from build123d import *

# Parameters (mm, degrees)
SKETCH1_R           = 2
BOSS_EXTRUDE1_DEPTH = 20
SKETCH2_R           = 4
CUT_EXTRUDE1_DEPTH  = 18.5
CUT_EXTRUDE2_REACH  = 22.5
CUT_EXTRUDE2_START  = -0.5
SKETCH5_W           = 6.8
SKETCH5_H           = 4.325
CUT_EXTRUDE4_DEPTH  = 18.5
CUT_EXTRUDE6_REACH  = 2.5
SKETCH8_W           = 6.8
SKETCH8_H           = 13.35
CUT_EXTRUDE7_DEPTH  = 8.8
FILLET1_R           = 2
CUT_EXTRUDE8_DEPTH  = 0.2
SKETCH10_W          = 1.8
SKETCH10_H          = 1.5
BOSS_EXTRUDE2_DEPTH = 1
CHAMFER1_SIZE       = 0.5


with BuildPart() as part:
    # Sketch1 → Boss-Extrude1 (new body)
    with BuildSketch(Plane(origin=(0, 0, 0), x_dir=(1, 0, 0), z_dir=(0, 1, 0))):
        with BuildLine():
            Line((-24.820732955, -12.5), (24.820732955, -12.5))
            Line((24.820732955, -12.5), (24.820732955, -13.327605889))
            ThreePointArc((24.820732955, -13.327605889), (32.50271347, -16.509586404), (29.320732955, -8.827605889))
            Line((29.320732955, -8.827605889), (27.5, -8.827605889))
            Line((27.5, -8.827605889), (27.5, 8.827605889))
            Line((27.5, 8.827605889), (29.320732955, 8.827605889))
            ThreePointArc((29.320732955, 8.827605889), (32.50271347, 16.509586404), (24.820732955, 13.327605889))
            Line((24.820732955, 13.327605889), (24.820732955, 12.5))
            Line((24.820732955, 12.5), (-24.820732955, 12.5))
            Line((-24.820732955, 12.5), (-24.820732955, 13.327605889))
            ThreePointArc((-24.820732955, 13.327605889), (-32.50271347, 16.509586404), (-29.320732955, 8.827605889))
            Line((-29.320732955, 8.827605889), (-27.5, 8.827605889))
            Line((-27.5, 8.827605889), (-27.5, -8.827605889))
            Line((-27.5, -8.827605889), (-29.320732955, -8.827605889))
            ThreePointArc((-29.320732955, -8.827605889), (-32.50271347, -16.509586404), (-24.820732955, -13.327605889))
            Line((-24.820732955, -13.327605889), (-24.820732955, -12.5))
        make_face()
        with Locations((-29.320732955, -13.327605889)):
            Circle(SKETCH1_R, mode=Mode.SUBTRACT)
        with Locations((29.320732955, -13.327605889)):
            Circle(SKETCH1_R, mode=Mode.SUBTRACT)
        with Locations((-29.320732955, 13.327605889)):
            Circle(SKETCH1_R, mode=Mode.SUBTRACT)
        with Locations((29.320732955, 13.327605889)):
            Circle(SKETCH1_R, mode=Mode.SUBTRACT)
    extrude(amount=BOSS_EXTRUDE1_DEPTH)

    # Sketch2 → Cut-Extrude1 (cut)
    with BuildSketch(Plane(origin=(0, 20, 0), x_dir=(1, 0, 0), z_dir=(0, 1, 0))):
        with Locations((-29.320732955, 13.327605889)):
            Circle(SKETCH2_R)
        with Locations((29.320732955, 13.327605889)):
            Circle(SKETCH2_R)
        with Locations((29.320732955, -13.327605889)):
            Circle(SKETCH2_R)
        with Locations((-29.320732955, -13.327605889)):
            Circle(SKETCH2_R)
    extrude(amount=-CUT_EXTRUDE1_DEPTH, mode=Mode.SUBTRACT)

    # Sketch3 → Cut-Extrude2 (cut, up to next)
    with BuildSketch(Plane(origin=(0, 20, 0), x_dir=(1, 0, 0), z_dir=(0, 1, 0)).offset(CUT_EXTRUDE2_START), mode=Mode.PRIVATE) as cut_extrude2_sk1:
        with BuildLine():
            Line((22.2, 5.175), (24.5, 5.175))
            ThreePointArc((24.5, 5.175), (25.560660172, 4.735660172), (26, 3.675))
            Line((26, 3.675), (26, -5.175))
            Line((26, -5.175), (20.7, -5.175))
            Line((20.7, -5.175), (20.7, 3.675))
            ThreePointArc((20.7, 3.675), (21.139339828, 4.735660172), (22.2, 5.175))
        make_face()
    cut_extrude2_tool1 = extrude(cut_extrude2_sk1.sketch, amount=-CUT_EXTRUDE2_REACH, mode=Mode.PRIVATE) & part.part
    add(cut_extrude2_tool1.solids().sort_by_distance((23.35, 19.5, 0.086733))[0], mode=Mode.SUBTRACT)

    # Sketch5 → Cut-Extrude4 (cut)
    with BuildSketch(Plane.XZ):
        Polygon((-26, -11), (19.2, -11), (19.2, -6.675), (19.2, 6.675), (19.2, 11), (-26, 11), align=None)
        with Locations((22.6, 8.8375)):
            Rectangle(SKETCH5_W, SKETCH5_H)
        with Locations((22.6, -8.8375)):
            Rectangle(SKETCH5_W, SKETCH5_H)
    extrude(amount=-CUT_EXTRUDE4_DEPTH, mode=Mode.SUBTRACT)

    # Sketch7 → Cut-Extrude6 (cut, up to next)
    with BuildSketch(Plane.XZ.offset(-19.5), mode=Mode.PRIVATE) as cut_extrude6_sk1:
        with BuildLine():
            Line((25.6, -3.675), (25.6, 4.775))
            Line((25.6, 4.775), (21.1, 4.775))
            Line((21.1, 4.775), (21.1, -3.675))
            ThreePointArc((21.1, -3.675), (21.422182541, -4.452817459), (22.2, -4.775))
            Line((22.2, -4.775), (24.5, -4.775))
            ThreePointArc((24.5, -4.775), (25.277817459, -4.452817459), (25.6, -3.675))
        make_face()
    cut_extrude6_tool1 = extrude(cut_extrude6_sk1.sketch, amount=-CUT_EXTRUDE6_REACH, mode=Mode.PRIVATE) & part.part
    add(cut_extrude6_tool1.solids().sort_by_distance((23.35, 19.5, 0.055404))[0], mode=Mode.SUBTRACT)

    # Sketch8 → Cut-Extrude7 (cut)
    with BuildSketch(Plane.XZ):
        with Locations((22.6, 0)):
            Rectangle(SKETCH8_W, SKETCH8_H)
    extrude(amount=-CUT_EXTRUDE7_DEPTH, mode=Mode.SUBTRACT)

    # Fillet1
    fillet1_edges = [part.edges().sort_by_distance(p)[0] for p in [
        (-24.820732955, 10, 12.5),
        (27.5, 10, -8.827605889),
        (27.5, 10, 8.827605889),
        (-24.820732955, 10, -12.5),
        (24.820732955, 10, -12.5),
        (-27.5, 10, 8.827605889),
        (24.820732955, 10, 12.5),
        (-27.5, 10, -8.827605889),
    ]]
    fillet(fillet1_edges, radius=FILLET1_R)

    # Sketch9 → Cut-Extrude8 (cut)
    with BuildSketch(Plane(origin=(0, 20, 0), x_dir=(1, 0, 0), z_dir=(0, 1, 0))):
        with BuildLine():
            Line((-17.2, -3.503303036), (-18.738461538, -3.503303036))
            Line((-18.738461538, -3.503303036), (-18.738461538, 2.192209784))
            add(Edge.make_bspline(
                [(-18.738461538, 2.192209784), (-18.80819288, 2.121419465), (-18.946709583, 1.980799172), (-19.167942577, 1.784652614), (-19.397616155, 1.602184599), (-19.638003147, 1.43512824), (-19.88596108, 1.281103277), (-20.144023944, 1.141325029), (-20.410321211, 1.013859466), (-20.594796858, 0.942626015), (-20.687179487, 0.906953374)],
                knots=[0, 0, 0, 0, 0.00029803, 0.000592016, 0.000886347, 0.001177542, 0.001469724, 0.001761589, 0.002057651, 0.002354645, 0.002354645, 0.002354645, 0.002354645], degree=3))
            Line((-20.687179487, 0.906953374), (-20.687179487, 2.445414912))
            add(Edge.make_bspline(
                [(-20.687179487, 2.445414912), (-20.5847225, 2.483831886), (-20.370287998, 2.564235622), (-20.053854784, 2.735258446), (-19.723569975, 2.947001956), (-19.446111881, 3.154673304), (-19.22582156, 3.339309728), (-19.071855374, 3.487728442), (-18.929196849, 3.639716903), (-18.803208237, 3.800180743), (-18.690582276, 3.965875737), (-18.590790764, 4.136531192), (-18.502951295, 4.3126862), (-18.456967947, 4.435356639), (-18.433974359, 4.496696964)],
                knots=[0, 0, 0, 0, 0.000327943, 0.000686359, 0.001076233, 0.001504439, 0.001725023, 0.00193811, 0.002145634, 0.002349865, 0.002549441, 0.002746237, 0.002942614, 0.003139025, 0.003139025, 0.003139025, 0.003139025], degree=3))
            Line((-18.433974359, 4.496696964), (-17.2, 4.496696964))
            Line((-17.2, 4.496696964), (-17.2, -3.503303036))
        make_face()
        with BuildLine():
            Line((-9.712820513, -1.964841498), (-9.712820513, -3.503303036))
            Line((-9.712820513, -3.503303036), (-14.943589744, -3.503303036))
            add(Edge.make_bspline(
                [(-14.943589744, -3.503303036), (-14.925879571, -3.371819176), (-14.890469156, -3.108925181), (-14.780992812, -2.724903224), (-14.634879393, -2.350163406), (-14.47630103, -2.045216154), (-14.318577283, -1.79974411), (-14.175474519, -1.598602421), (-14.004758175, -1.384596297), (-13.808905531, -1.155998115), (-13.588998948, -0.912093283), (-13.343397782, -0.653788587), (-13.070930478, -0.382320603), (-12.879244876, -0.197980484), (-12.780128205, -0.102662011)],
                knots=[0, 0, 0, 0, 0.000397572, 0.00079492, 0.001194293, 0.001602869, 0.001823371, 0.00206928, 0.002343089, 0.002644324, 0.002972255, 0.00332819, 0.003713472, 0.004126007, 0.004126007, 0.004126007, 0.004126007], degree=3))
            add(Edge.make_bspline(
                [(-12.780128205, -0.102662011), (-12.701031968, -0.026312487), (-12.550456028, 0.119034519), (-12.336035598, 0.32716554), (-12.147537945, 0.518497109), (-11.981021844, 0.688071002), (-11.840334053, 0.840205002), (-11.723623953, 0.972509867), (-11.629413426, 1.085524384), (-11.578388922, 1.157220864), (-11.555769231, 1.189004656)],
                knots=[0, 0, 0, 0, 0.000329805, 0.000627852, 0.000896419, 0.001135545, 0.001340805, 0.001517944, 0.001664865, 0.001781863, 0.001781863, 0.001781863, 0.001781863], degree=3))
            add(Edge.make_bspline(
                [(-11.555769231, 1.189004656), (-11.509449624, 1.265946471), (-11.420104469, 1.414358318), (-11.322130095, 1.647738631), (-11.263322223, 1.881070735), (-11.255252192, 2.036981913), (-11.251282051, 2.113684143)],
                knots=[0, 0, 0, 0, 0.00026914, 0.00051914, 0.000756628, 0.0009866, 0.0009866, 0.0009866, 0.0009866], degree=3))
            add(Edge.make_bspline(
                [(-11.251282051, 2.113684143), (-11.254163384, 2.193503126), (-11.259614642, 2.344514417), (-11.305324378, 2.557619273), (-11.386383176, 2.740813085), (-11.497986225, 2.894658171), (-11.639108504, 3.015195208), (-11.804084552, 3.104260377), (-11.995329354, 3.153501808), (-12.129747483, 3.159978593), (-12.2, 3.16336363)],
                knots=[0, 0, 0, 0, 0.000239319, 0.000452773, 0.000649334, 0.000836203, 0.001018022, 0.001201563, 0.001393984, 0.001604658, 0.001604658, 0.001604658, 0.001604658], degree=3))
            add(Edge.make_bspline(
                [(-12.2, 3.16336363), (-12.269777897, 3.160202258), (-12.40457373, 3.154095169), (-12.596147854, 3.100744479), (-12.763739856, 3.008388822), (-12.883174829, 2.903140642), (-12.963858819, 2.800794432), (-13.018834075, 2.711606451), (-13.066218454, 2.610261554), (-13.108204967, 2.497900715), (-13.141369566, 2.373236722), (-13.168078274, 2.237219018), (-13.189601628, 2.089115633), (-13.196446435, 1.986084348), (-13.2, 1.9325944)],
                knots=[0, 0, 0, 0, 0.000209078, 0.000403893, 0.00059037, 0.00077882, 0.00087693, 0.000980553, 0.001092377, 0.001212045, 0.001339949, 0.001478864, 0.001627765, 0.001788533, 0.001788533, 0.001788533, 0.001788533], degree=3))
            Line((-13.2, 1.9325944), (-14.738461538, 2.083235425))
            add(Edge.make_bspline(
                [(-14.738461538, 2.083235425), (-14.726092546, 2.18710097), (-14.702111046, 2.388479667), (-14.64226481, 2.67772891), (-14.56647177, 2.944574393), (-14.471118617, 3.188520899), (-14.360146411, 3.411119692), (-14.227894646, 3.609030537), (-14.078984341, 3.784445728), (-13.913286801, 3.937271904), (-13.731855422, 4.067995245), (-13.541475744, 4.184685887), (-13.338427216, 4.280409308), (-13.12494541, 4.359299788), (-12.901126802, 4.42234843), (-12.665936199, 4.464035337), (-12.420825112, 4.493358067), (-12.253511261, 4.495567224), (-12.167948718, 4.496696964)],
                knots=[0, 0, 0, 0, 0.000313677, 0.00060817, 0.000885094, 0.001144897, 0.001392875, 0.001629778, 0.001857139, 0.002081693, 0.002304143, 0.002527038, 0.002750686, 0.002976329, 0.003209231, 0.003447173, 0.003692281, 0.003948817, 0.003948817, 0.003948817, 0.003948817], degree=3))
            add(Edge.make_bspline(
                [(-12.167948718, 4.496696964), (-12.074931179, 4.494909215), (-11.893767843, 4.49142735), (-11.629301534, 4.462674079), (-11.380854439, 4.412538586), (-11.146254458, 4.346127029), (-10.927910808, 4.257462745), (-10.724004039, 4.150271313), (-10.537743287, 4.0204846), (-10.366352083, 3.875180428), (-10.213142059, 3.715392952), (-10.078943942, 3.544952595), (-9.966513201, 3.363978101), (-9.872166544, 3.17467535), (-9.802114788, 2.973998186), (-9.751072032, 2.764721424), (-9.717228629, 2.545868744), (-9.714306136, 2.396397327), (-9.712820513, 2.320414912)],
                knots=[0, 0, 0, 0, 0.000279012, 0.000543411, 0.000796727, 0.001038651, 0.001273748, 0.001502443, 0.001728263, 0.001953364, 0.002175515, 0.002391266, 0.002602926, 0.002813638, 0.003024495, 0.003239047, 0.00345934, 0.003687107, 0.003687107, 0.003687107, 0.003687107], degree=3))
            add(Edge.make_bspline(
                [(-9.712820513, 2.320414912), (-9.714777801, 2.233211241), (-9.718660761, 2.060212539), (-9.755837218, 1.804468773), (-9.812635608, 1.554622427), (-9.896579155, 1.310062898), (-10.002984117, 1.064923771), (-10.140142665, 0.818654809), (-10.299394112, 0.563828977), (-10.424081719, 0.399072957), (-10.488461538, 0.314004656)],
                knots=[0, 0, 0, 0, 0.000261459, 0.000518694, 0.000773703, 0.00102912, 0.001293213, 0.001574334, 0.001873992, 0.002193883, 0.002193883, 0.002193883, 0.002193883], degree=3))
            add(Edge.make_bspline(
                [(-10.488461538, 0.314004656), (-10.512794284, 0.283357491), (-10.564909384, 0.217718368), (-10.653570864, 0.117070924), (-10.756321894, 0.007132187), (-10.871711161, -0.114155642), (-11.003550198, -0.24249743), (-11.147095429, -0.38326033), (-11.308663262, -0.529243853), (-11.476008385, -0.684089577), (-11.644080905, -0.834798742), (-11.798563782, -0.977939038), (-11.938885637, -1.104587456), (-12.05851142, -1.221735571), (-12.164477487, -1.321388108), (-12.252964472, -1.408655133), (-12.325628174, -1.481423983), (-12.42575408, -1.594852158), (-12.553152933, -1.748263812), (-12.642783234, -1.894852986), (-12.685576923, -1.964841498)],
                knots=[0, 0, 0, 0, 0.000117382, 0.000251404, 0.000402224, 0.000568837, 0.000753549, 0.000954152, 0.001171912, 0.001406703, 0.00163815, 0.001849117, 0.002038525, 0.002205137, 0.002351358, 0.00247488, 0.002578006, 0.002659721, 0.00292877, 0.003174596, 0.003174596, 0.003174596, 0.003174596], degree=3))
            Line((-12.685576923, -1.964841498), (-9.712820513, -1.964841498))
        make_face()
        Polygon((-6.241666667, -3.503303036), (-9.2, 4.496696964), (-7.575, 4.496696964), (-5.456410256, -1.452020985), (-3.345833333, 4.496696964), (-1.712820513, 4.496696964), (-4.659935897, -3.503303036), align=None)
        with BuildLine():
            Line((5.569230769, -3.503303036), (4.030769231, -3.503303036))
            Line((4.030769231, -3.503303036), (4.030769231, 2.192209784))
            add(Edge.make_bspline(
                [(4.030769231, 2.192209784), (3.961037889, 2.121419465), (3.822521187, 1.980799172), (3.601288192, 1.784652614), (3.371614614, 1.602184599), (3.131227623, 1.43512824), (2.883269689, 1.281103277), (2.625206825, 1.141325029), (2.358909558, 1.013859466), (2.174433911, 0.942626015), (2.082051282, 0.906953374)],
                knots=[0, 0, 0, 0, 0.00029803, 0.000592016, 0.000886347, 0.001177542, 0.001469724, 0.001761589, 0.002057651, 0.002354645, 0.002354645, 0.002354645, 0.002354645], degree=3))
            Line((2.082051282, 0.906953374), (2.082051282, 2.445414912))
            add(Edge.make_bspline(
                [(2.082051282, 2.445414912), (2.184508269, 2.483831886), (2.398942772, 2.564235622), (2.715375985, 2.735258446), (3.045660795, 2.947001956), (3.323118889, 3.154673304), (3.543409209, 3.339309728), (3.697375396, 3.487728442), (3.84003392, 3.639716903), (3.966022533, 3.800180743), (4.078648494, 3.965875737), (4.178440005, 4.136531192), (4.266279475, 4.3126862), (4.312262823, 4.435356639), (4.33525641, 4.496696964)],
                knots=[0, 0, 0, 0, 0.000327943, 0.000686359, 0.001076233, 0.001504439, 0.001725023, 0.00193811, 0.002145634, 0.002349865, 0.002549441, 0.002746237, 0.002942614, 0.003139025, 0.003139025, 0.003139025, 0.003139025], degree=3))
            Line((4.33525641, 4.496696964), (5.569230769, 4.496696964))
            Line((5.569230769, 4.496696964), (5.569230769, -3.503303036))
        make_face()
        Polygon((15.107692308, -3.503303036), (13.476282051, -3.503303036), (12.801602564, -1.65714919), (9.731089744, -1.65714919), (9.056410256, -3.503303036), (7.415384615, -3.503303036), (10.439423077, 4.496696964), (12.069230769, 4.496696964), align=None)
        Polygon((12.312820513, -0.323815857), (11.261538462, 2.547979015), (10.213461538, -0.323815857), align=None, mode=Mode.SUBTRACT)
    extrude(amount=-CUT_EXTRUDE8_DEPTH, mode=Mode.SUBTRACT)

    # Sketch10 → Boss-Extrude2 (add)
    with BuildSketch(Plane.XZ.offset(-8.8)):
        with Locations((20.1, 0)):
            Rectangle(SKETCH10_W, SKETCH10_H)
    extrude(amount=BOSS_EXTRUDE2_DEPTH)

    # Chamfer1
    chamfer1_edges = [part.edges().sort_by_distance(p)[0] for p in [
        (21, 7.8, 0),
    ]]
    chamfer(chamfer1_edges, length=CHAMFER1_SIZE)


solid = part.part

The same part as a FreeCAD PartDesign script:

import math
import FreeCAD as App
import Part
import Sketcher

V = App.Vector


def edges_at(feature, points):
    """Names of the edges that pass closest to the given points."""
    edges = feature.Shape.Edges
    near = lambda p: min(range(len(edges)), key=lambda i: edges[i].distToShape(Part.Vertex(*p))[0])
    return sorted({f"Edge{near(p) + 1}" for p in points})

doc = App.newDocument("Part")
body = doc.addObject("PartDesign::Body", "Body")

sketch1 = body.newObject("Sketcher::SketchObject", "Sketch")
sketch1.AttachmentSupport = (doc.getObject("XZ_Plane"), [""])
sketch1.MapMode = "FlatFace"
sketch1.addGeometry(Part.LineSegment(V(-24.820733, 12.5, 0), V(24.820733, 12.5, 0)), False)
sketch1.addGeometry(Part.LineSegment(V(24.820733, 12.5, 0), V(24.820733, 13.327606, 0)), False)
sketch1.addGeometry(Part.ArcOfCircle(Part.Circle(V(29.320733, 13.327606, 0), V(0, 0, 1), 4.5), math.radians(-90), math.radians(180)), False)
sketch1.addGeometry(Part.LineSegment(V(29.320733, 8.827606, 0), V(27.5, 8.827606, 0)), False)
sketch1.addGeometry(Part.LineSegment(V(27.5, 8.827606, 0), V(27.5, -8.827606, 0)), False)
sketch1.addGeometry(Part.LineSegment(V(27.5, -8.827606, 0), V(29.320733, -8.827606, 0)), False)
sketch1.addGeometry(Part.ArcOfCircle(Part.Circle(V(29.320733, -13.327606, 0), V(0, 0, 1), 4.5), math.radians(180), math.radians(450)), False)
sketch1.addGeometry(Part.LineSegment(V(24.820733, -13.327606, 0), V(24.820733, -12.5, 0)), False)
sketch1.addGeometry(Part.LineSegment(V(24.820733, -12.5, 0), V(-24.820733, -12.5, 0)), False)
sketch1.addGeometry(Part.LineSegment(V(-24.820733, -12.5, 0), V(-24.820733, -13.327606, 0)), False)
sketch1.addGeometry(Part.ArcOfCircle(Part.Circle(V(-29.320733, -13.327606, 0), V(0, 0, 1), 4.5), math.radians(90), math.radians(360)), False)
sketch1.addGeometry(Part.LineSegment(V(-29.320733, -8.827606, 0), V(-27.5, -8.827606, 0)), False)
sketch1.addGeometry(Part.LineSegment(V(-27.5, -8.827606, 0), V(-27.5, 8.827606, 0)), False)
sketch1.addGeometry(Part.LineSegment(V(-27.5, 8.827606, 0), V(-29.320733, 8.827606, 0)), False)
sketch1.addGeometry(Part.ArcOfCircle(Part.Circle(V(-29.320733, 13.327606, 0), V(0, 0, 1), 4.5), math.radians(0), math.radians(270)), False)
sketch1.addGeometry(Part.LineSegment(V(-24.820733, 13.327606, 0), V(-24.820733, 12.5, 0)), False)
sketch1.addGeometry(Part.Circle(V(-29.320733, 13.327606, 0), V(0, 0, 1), 2), False)
sketch1.addGeometry(Part.Circle(V(29.320733, 13.327606, 0), V(0, 0, 1), 2), False)
sketch1.addGeometry(Part.Circle(V(-29.320733, -13.327606, 0), V(0, 0, 1), 2), False)
sketch1.addGeometry(Part.Circle(V(29.320733, -13.327606, 0), V(0, 0, 1), 2), False)
sketch1.addConstraint(Sketcher.Constraint("Coincident", 0, 2, 1, 1))
sketch1.addConstraint(Sketcher.Constraint("Tangent", 1, 2, 2, 2))
sketch1.addConstraint(Sketcher.Constraint("Tangent", 2, 1, 3, 1))
sketch1.addConstraint(Sketcher.Constraint("Coincident", 3, 2, 4, 1))
sketch1.addConstraint(Sketcher.Constraint("Coincident", 4, 2, 5, 1))
sketch1.addConstraint(Sketcher.Constraint("Tangent", 5, 2, 6, 2))
sketch1.addConstraint(Sketcher.Constraint("Tangent", 6, 1, 7, 1))
sketch1.addConstraint(Sketcher.Constraint("Coincident", 7, 2, 8, 1))
sketch1.addConstraint(Sketcher.Constraint("Coincident", 8, 2, 9, 1))
sketch1.addConstraint(Sketcher.Constraint("Tangent", 9, 2, 10, 2))
sketch1.addConstraint(Sketcher.Constraint("Tangent", 10, 1, 11, 1))
sketch1.addConstraint(Sketcher.Constraint("Coincident", 11, 2, 12, 1))
sketch1.addConstraint(Sketcher.Constraint("Coincident", 12, 2, 13, 1))
sketch1.addConstraint(Sketcher.Constraint("Tangent", 13, 2, 14, 2))
sketch1.addConstraint(Sketcher.Constraint("Tangent", 14, 1, 15, 1))
sketch1.addConstraint(Sketcher.Constraint("Coincident", 15, 2, 0, 1))
sketch1.addConstraint(Sketcher.Constraint("Horizontal", 0))
sketch1.addConstraint(Sketcher.Constraint("Vertical", 1))
sketch1.addConstraint(Sketcher.Constraint("Horizontal", 3))
sketch1.addConstraint(Sketcher.Constraint("Vertical", 4))
sketch1.addConstraint(Sketcher.Constraint("Horizontal", 5))
sketch1.addConstraint(Sketcher.Constraint("Vertical", 7))
sketch1.addConstraint(Sketcher.Constraint("Horizontal", 8))
sketch1.addConstraint(Sketcher.Constraint("Vertical", 9))
sketch1.addConstraint(Sketcher.Constraint("Horizontal", 11))
sketch1.addConstraint(Sketcher.Constraint("Vertical", 12))
sketch1.addConstraint(Sketcher.Constraint("Horizontal", 13))
sketch1.addConstraint(Sketcher.Constraint("Vertical", 15))
sketch1.addConstraint(Sketcher.Constraint("Coincident", 16, 3, 14, 3))
sketch1.addConstraint(Sketcher.Constraint("Coincident", 17, 3, 2, 3))
sketch1.addConstraint(Sketcher.Constraint("Coincident", 18, 3, 10, 3))
sketch1.addConstraint(Sketcher.Constraint("Coincident", 19, 3, 6, 3))
sketch1.addConstraint(Sketcher.Constraint("Equal", 2, 6))
sketch1.addConstraint(Sketcher.Constraint("Equal", 6, 10))
sketch1.addConstraint(Sketcher.Constraint("Equal", 10, 14))
sketch1.addConstraint(Sketcher.Constraint("Equal", 16, 17))
sketch1.addConstraint(Sketcher.Constraint("Equal", 17, 18))
sketch1.addConstraint(Sketcher.Constraint("Equal", 18, 19))
sketch1.addConstraint(Sketcher.Constraint("Symmetric", 2, 3, 10, 3, -1, 1))
sketch1.addConstraint(Sketcher.Constraint("Symmetric", 6, 3, 14, 3, -1, 1))
sketch1.addConstraint(Sketcher.Constraint("Symmetric", 6, 3, 10, 3, -2))
sketch1.addConstraint(Sketcher.Constraint("Equal", 5, 11))
sketch1.addConstraint(Sketcher.Constraint("Equal", 1, 7))
sketch1.addConstraint(Sketcher.Constraint("Diameter", 16, 4.0))
sketch1.addConstraint(Sketcher.Constraint("Radius", 2, 4.5))
sketch1.addConstraint(Sketcher.Constraint("DistanceY", -1, 1, 0, 2, 12.5))
sketch1.addConstraint(Sketcher.Constraint("DistanceX", -1, 1, 3, 2, 27.5))
sketch1.addConstraint(Sketcher.Constraint("DistanceY", 4, 2, 4, 1, 17.655212))
sketch1.addConstraint(Sketcher.Constraint("DistanceX", 0, 1, 0, 2, 49.641466))
pad1 = body.newObject("PartDesign::Pad", "Pad")
pad1.Profile = sketch1
pad1.Length = 20
pad1.Reversed = True

sketch2 = body.newObject("Sketcher::SketchObject", "Sketch001")
sketch2.AttachmentSupport = (doc.getObject("XZ_Plane"), [""])
sketch2.MapMode = "FlatFace"
sketch2.AttachmentOffset = App.Placement(V(0, 0, -20), App.Rotation())
sketch2.addGeometry(Part.Circle(V(-29.320733, -13.327606, 0), V(0, 0, 1), 4), False)
sketch2.addGeometry(Part.Circle(V(29.320733, -13.327606, 0), V(0, 0, 1), 4), False)
sketch2.addGeometry(Part.Circle(V(29.320733, 13.327606, 0), V(0, 0, 1), 4), False)
sketch2.addGeometry(Part.Circle(V(-29.320733, 13.327606, 0), V(0, 0, 1), 4), False)
sketch2.addConstraint(Sketcher.Constraint("Equal", 0, 1))
sketch2.addConstraint(Sketcher.Constraint("Equal", 1, 2))
sketch2.addConstraint(Sketcher.Constraint("Equal", 2, 3))
sketch2.addConstraint(Sketcher.Constraint("Symmetric", 0, 3, 2, 3, -1, 1))
sketch2.addConstraint(Sketcher.Constraint("Symmetric", 1, 3, 3, 3, -1, 1))
sketch2.addConstraint(Sketcher.Constraint("Symmetric", 0, 3, 1, 3, -2))
sketch2.addConstraint(Sketcher.Constraint("Diameter", 0, 8.0))
sketch2.addConstraint(Sketcher.Constraint("DistanceY", 1, 3, 2, 3, 26.655212))
sketch2.addConstraint(Sketcher.Constraint("DistanceX", 0, 3, -1, 1, 29.320733))
pocket1 = body.newObject("PartDesign::Pocket", "Pocket")
pocket1.Profile = sketch2
pocket1.Length = 18.5
pocket1.Reversed = True

sketch3 = body.newObject("Sketcher::SketchObject", "Sketch002")
sketch3.AttachmentSupport = (doc.getObject("XZ_Plane"), [""])
sketch3.MapMode = "FlatFace"
sketch3.AttachmentOffset = App.Placement(V(0, 0, -19.5), App.Rotation())
sketch3.addGeometry(Part.LineSegment(V(24.5, -5.175, 0), V(22.2, -5.175, 0)), False)
sketch3.addGeometry(Part.ArcOfCircle(Part.Circle(V(22.2, -3.675, 0), V(0, 0, 1), 1.5), math.radians(180), math.radians(270)), False)
sketch3.addGeometry(Part.LineSegment(V(20.7, -3.675, 0), V(20.7, 5.175, 0)), False)
sketch3.addGeometry(Part.LineSegment(V(20.7, 5.175, 0), V(26, 5.175, 0)), False)
sketch3.addGeometry(Part.LineSegment(V(26, 5.175, 0), V(26, -3.675, 0)), False)
sketch3.addGeometry(Part.ArcOfCircle(Part.Circle(V(24.5, -3.675, 0), V(0, 0, 1), 1.5), math.radians(-90), math.radians(0)), False)
sketch3.addConstraint(Sketcher.Constraint("Tangent", 0, 2, 1, 2))
sketch3.addConstraint(Sketcher.Constraint("Tangent", 1, 1, 2, 1))
sketch3.addConstraint(Sketcher.Constraint("Coincident", 2, 2, 3, 1))
sketch3.addConstraint(Sketcher.Constraint("Coincident", 3, 2, 4, 1))
sketch3.addConstraint(Sketcher.Constraint("Tangent", 4, 2, 5, 2))
sketch3.addConstraint(Sketcher.Constraint("Tangent", 5, 1, 0, 1))
sketch3.addConstraint(Sketcher.Constraint("Horizontal", 0))
sketch3.addConstraint(Sketcher.Constraint("Vertical", 2))
sketch3.addConstraint(Sketcher.Constraint("Horizontal", 3))
sketch3.addConstraint(Sketcher.Constraint("Vertical", 4))
sketch3.addConstraint(Sketcher.Constraint("Equal", 1, 5))
sketch3.addConstraint(Sketcher.Constraint("Radius", 1, 1.5))
sketch3.addConstraint(Sketcher.Constraint("DistanceX", 0, 2, 0, 1, 2.3))
sketch3.addConstraint(Sketcher.Constraint("DistanceX", -1, 1, 3, 2, 26.0))
sketch3.addConstraint(Sketcher.Constraint("DistanceY", 2, 1, 2, 2, 8.85))
sketch3.addConstraint(Sketcher.Constraint("DistanceY", 1, 3, -1, 1, 3.675))
pocket2 = body.newObject("PartDesign::Pocket", "Pocket001")
pocket2.Profile = sketch3
pocket2.Type = "UpToFirst"
pocket2.Reversed = True

sketch4 = body.newObject("Sketcher::SketchObject", "Sketch003")
sketch4.AttachmentSupport = (doc.getObject("XZ_Plane"), [""])
sketch4.MapMode = "FlatFace"
sketch4.addGeometry(Part.LineSegment(V(-26, -11, 0), V(26, -11, 0)), False)
sketch4.addGeometry(Part.LineSegment(V(26, -11, 0), V(26, -6.675, 0)), False)
sketch4.addGeometry(Part.LineSegment(V(26, -6.675, 0), V(19.2, -6.675, 0)), False)
sketch4.addGeometry(Part.LineSegment(V(19.2, -6.675, 0), V(19.2, 6.675, 0)), False)
sketch4.addGeometry(Part.LineSegment(V(19.2, 6.675, 0), V(26, 6.675, 0)), False)
sketch4.addGeometry(Part.LineSegment(V(26, 6.675, 0), V(26, 11, 0)), False)
sketch4.addGeometry(Part.LineSegment(V(26, 11, 0), V(-26, 11, 0)), False)
sketch4.addGeometry(Part.LineSegment(V(-26, 11, 0), V(-26, -11, 0)), False)
sketch4.addConstraint(Sketcher.Constraint("Coincident", 0, 2, 1, 1))
sketch4.addConstraint(Sketcher.Constraint("Coincident", 1, 2, 2, 1))
sketch4.addConstraint(Sketcher.Constraint("Coincident", 2, 2, 3, 1))
sketch4.addConstraint(Sketcher.Constraint("Coincident", 3, 2, 4, 1))
sketch4.addConstraint(Sketcher.Constraint("Coincident", 4, 2, 5, 1))
sketch4.addConstraint(Sketcher.Constraint("Coincident", 5, 2, 6, 1))
sketch4.addConstraint(Sketcher.Constraint("Coincident", 6, 2, 7, 1))
sketch4.addConstraint(Sketcher.Constraint("Coincident", 7, 2, 0, 1))
sketch4.addConstraint(Sketcher.Constraint("Horizontal", 0))
sketch4.addConstraint(Sketcher.Constraint("Vertical", 1))
sketch4.addConstraint(Sketcher.Constraint("Horizontal", 2))
sketch4.addConstraint(Sketcher.Constraint("Vertical", 3))
sketch4.addConstraint(Sketcher.Constraint("Horizontal", 4))
sketch4.addConstraint(Sketcher.Constraint("Vertical", 5))
sketch4.addConstraint(Sketcher.Constraint("Horizontal", 6))
sketch4.addConstraint(Sketcher.Constraint("Vertical", 7))
sketch4.addConstraint(Sketcher.Constraint("Symmetric", 0, 2, 6, 2, -1, 1))
sketch4.addConstraint(Sketcher.Constraint("Symmetric", 1, 2, 4, 2, -1))
sketch4.addConstraint(Sketcher.Constraint("DistanceX", 0, 1, 0, 2, 52.0))
sketch4.addConstraint(Sketcher.Constraint("DistanceY", 7, 2, 7, 1, 22.0))
sketch4.addConstraint(Sketcher.Constraint("DistanceX", 2, 2, 2, 1, 6.8))
sketch4.addConstraint(Sketcher.Constraint("DistanceY", 3, 1, 3, 2, 13.35))
pocket3 = body.newObject("PartDesign::Pocket", "Pocket002")
pocket3.Profile = sketch4
pocket3.Length = 18.5

sketch5 = body.newObject("Sketcher::SketchObject", "Sketch004")
sketch5.AttachmentSupport = (doc.getObject("XZ_Plane"), [""])
sketch5.MapMode = "FlatFace"
sketch5.AttachmentOffset = App.Placement(V(0, 0, -19.5), App.Rotation())
sketch5.addGeometry(Part.LineSegment(V(25.6, -3.675, 0), V(25.6, 4.775, 0)), False)
sketch5.addGeometry(Part.LineSegment(V(25.6, 4.775, 0), V(21.1, 4.775, 0)), False)
sketch5.addGeometry(Part.LineSegment(V(21.1, 4.775, 0), V(21.1, -3.675, 0)), False)
sketch5.addGeometry(Part.ArcOfCircle(Part.Circle(V(22.2, -3.675, 0), V(0, 0, 1), 1.1), math.radians(-180), math.radians(-90)), False)
sketch5.addGeometry(Part.LineSegment(V(22.2, -4.775, 0), V(24.5, -4.775, 0)), False)
sketch5.addGeometry(Part.ArcOfCircle(Part.Circle(V(24.5, -3.675, 0), V(0, 0, 1), 1.1), math.radians(-90), math.radians(0)), False)
sketch5.addConstraint(Sketcher.Constraint("Coincident", 0, 2, 1, 1))
sketch5.addConstraint(Sketcher.Constraint("Coincident", 1, 2, 2, 1))
sketch5.addConstraint(Sketcher.Constraint("Tangent", 2, 2, 3, 1))
sketch5.addConstraint(Sketcher.Constraint("Tangent", 3, 2, 4, 1))
sketch5.addConstraint(Sketcher.Constraint("Tangent", 4, 2, 5, 1))
sketch5.addConstraint(Sketcher.Constraint("Tangent", 5, 2, 0, 1))
sketch5.addConstraint(Sketcher.Constraint("Vertical", 0))
sketch5.addConstraint(Sketcher.Constraint("Horizontal", 1))
sketch5.addConstraint(Sketcher.Constraint("Vertical", 2))
sketch5.addConstraint(Sketcher.Constraint("Horizontal", 4))
sketch5.addConstraint(Sketcher.Constraint("Equal", 3, 5))
sketch5.addConstraint(Sketcher.Constraint("Radius", 3, 1.1))
sketch5.addConstraint(Sketcher.Constraint("DistanceX", 1, 2, 1, 1, 4.5))
sketch5.addConstraint(Sketcher.Constraint("DistanceY", 0, 1, 0, 2, 8.45))
sketch5.addConstraint(Sketcher.Constraint("DistanceX", -1, 1, 3, 3, 22.2))
sketch5.addConstraint(Sketcher.Constraint("DistanceY", 3, 3, -1, 1, 3.675))
pocket4 = body.newObject("PartDesign::Pocket", "Pocket003")
pocket4.Profile = sketch5
pocket4.Type = "UpToFirst"

sketch6 = body.newObject("Sketcher::SketchObject", "Sketch005")
sketch6.AttachmentSupport = (doc.getObject("XZ_Plane"), [""])
sketch6.MapMode = "FlatFace"
sketch6.addGeometry(Part.LineSegment(V(19.2, 6.675, 0), V(19.2, -6.675, 0)), False)
sketch6.addGeometry(Part.LineSegment(V(19.2, -6.675, 0), V(26, -6.675, 0)), False)
sketch6.addGeometry(Part.LineSegment(V(26, -6.675, 0), V(26, 6.675, 0)), False)
sketch6.addGeometry(Part.LineSegment(V(26, 6.675, 0), V(19.2, 6.675, 0)), False)
sketch6.addConstraint(Sketcher.Constraint("Coincident", 0, 2, 1, 1))
sketch6.addConstraint(Sketcher.Constraint("Coincident", 1, 2, 2, 1))
sketch6.addConstraint(Sketcher.Constraint("Coincident", 2, 2, 3, 1))
sketch6.addConstraint(Sketcher.Constraint("Coincident", 3, 2, 0, 1))
sketch6.addConstraint(Sketcher.Constraint("Vertical", 0))
sketch6.addConstraint(Sketcher.Constraint("Horizontal", 1))
sketch6.addConstraint(Sketcher.Constraint("Vertical", 2))
sketch6.addConstraint(Sketcher.Constraint("Horizontal", 3))
sketch6.addConstraint(Sketcher.Constraint("DistanceX", 1, 1, 1, 2, 6.8))
sketch6.addConstraint(Sketcher.Constraint("DistanceX", -1, 1, 1, 2, 26.0))
sketch6.addConstraint(Sketcher.Constraint("DistanceY", 0, 2, 0, 1, 13.35))
sketch6.addConstraint(Sketcher.Constraint("DistanceY", 0, 2, -1, 1, 6.675))
pocket5 = body.newObject("PartDesign::Pocket", "Pocket004")
pocket5.Profile = sketch6
pocket5.Length = 8.8
doc.recompute()

fillet = body.newObject("PartDesign::Fillet", "Fillet")
fillet.Base = (pocket5, edges_at(pocket5, [
    (-24.821, 10, 12.5),
    (27.5, 10, -8.828),
    (27.5, 10, 8.828),
    (-24.821, 10, -12.5),
    (24.821, 10, -12.5),
    (-27.5, 10, 8.828),
    (24.821, 10, 12.5),
    (-27.5, 10, -8.828),
]))
fillet.Radius = 2

sketch7 = body.newObject("Sketcher::SketchObject", "Sketch006")
sketch7.AttachmentSupport = (doc.getObject("XZ_Plane"), [""])
sketch7.MapMode = "FlatFace"
sketch7.AttachmentOffset = App.Placement(V(0, 0, -20), App.Rotation())
sketch7.addGeometry(Part.LineSegment(V(-18.738462, 3.503303, 0), V(-17.2, 3.503303, 0)), False)
sketch7.addGeometry(Part.LineSegment(V(-17.2, 3.503303, 0), V(-17.2, -4.496697, 0)), False)
sketch7.addGeometry(Part.LineSegment(V(-17.2, -4.496697, 0), V(-18.433974, -4.496697, 0)), False)
sketch7.addGeometry(Part.BSplineCurve([V(-20.687179, -2.445415, 0), V(-20.584723, -2.483832, 0), V(-20.370288, -2.564236, 0), V(-20.053855, -2.735258, 0), V(-19.72357, -2.947002, 0), V(-19.446112, -3.154673, 0), V(-19.225822, -3.33931, 0), V(-19.071855, -3.487728, 0), V(-18.929197, -3.639717, 0), V(-18.803208, -3.800181, 0), V(-18.690582, -3.965876, 0), V(-18.590791, -4.136531, 0), V(-18.502951, -4.312686, 0), V(-18.456968, -4.435357, 0), V(-18.433974, -4.496697, 0)], [4, 1, 1, 1, 1, 1, 1, 1, 1, 1, 1, 1, 4], [0, 0.000327943, 0.000686359, 0.001076233, 0.001504439, 0.001725023, 0.00193811, 0.002145634, 0.002349865, 0.002549441, 0.002746237, 0.002942614, 0.003139025], False, 3, [1, 1, 1, 1, 1, 1, 1, 1, 1, 1, 1, 1, 1, 1, 1], False), False)
sketch7.addGeometry(Part.LineSegment(V(-20.687179, -2.445415, 0), V(-20.687179, -0.906953, 0)), False)
sketch7.addGeometry(Part.BSplineCurve([V(-18.738462, -2.19221, 0), V(-18.808193, -2.121419, 0), V(-18.94671, -1.980799, 0), V(-19.167943, -1.784653, 0), V(-19.397616, -1.602185, 0), V(-19.638003, -1.435128, 0), V(-19.885961, -1.281103, 0), V(-20.144024, -1.141325, 0), V(-20.410321, -1.013859, 0), V(-20.594797, -0.942626, 0), V(-20.687179, -0.906953, 0)], [4, 1, 1, 1, 1, 1, 1, 1, 4], [0, 0.00029803, 0.000592016, 0.000886347, 0.001177542, 0.001469724, 0.001761589, 0.002057651, 0.002354645], False, 3, [1, 1, 1, 1, 1, 1, 1, 1, 1, 1, 1], False), False)
sketch7.addGeometry(Part.LineSegment(V(-18.738462, -2.19221, 0), V(-18.738462, 3.503303, 0)), False)
sketch7.addGeometry(Part.LineSegment(V(-9.712821, 3.503303, 0), V(-9.712821, 1.964841, 0)), False)
sketch7.addGeometry(Part.LineSegment(V(-9.712821, 1.964841, 0), V(-12.685577, 1.964841, 0)), False)
sketch7.addGeometry(Part.BSplineCurve([V(-10.488462, -0.314005, 0), V(-10.512794, -0.283357, 0), V(-10.564909, -0.217718, 0), V(-10.653571, -0.117071, 0), V(-10.756322, -0.007132, 0), V(-10.871711, 0.114156, 0), V(-11.00355, 0.242497, 0), V(-11.147095, 0.38326, 0), V(-11.308663, 0.529244, 0), V(-11.476008, 0.68409, 0), V(-11.644081, 0.834799, 0), V(-11.798564, 0.977939, 0), V(-11.938886, 1.104587, 0), V(-12.058511, 1.221736, 0), V(-12.164477, 1.321388, 0), V(-12.252964, 1.408655, 0), V(-12.325628, 1.481424, 0), V(-12.425754, 1.594852, 0), V(-12.553153, 1.748264, 0), V(-12.642783, 1.894853, 0), V(-12.685577, 1.964841, 0)], [4, 1, 1, 1, 1, 1, 1, 1, 1, 1, 1, 1, 1, 1, 1, 1, 1, 1, 4], [0, 0.000117382, 0.000251404, 0.000402224, 0.000568837, 0.000753549, 0.000954152, 0.001171912, 0.001406703, 0.00163815, 0.001849117, 0.002038525, 0.002205137, 0.002351358, 0.00247488, 0.002578006, 0.002659721, 0.00292877, 0.003174596], False, 3, [1, 1, 1, 1, 1, 1, 1, 1, 1, 1, 1, 1, 1, 1, 1, 1, 1, 1, 1, 1, 1], False), False)
sketch7.addGeometry(Part.BSplineCurve([V(-9.712821, -2.320415, 0), V(-9.714778, -2.233211, 0), V(-9.718661, -2.060213, 0), V(-9.755837, -1.804469, 0), V(-9.812636, -1.554622, 0), V(-9.896579, -1.310063, 0), V(-10.002984, -1.064924, 0), V(-10.140143, -0.818655, 0), V(-10.299394, -0.563829, 0), V(-10.424082, -0.399073, 0), V(-10.488462, -0.314005, 0)], [4, 1, 1, 1, 1, 1, 1, 1, 4], [0, 0.000261459, 0.000518694, 0.000773703, 0.00102912, 0.001293213, 0.001574334, 0.001873992, 0.002193883], False, 3, [1, 1, 1, 1, 1, 1, 1, 1, 1, 1, 1], False), False)
sketch7.addGeometry(Part.BSplineCurve([V(-12.167949, -4.496697, 0), V(-12.074931, -4.494909, 0), V(-11.893768, -4.491427, 0), V(-11.629302, -4.462674, 0), V(-11.380854, -4.412539, 0), V(-11.146254, -4.346127, 0), V(-10.927911, -4.257463, 0), V(-10.724004, -4.150271, 0), V(-10.537743, -4.020485, 0), V(-10.366352, -3.87518, 0), V(-10.213142, -3.715393, 0), V(-10.078944, -3.544953, 0), V(-9.966513, -3.363978, 0), V(-9.872167, -3.174675, 0), V(-9.802115, -2.973998, 0), V(-9.751072, -2.764721, 0), V(-9.717229, -2.545869, 0), V(-9.714306, -2.396397, 0), V(-9.712821, -2.320415, 0)], [4, 1, 1, 1, 1, 1, 1, 1, 1, 1, 1, 1, 1, 1, 1, 1, 4], [0, 0.000279012, 0.000543411, 0.000796727, 0.001038651, 0.001273748, 0.001502443, 0.001728263, 0.001953364, 0.002175515, 0.002391266, 0.002602926, 0.002813638, 0.003024495, 0.003239047, 0.00345934, 0.003687107], False, 3, [1, 1, 1, 1, 1, 1, 1, 1, 1, 1, 1, 1, 1, 1, 1, 1, 1, 1, 1], False), False)
sketch7.addGeometry(Part.BSplineCurve([V(-14.738462, -2.083235, 0), V(-14.726093, -2.187101, 0), V(-14.702111, -2.38848, 0), V(-14.642265, -2.677729, 0), V(-14.566472, -2.944574, 0), V(-14.471119, -3.188521, 0), V(-14.360146, -3.41112, 0), V(-14.227895, -3.609031, 0), V(-14.078984, -3.784446, 0), V(-13.913287, -3.937272, 0), V(-13.731855, -4.067995, 0), V(-13.541476, -4.184686, 0), V(-13.338427, -4.280409, 0), V(-13.124945, -4.3593, 0), V(-12.901127, -4.422348, 0), V(-12.665936, -4.464035, 0), V(-12.420825, -4.493358, 0), V(-12.253511, -4.495567, 0), V(-12.167949, -4.496697, 0)], [4, 1, 1, 1, 1, 1, 1, 1, 1, 1, 1, 1, 1, 1, 1, 1, 4], [0, 0.000313677, 0.00060817, 0.000885094, 0.001144897, 0.001392875, 0.001629778, 0.001857139, 0.002081693, 0.002304143, 0.002527038, 0.002750686, 0.002976329, 0.003209231, 0.003447173, 0.003692281, 0.003948817], False, 3, [1, 1, 1, 1, 1, 1, 1, 1, 1, 1, 1, 1, 1, 1, 1, 1, 1, 1, 1], False), False)
sketch7.addGeometry(Part.LineSegment(V(-14.738462, -2.083235, 0), V(-13.2, -1.932594, 0)), False)
sketch7.addGeometry(Part.BSplineCurve([V(-12.2, -3.163364, 0), V(-12.269778, -3.160202, 0), V(-12.404574, -3.154095, 0), V(-12.596148, -3.100744, 0), V(-12.76374, -3.008389, 0), V(-12.883175, -2.903141, 0), V(-12.963859, -2.800794, 0), V(-13.018834, -2.711606, 0), V(-13.066218, -2.610262, 0), V(-13.108205, -2.497901, 0), V(-13.14137, -2.373237, 0), V(-13.168078, -2.237219, 0), V(-13.189602, -2.089116, 0), V(-13.196446, -1.986084, 0), V(-13.2, -1.932594, 0)], [4, 1, 1, 1, 1, 1, 1, 1, 1, 1, 1, 1, 4], [0, 0.000209078, 0.000403893, 0.00059037, 0.00077882, 0.00087693, 0.000980553, 0.001092377, 0.001212045, 0.001339949, 0.001478864, 0.001627765, 0.001788533], False, 3, [1, 1, 1, 1, 1, 1, 1, 1, 1, 1, 1, 1, 1, 1, 1], False), False)
sketch7.addGeometry(Part.BSplineCurve([V(-11.251282, -2.113684, 0), V(-11.254163, -2.193503, 0), V(-11.259615, -2.344514, 0), V(-11.305324, -2.557619, 0), V(-11.386383, -2.740813, 0), V(-11.497986, -2.894658, 0), V(-11.639109, -3.015195, 0), V(-11.804085, -3.10426, 0), V(-11.995329, -3.153502, 0), V(-12.129747, -3.159979, 0), V(-12.2, -3.163364, 0)], [4, 1, 1, 1, 1, 1, 1, 1, 4], [0, 0.000239319, 0.000452773, 0.000649334, 0.000836203, 0.001018022, 0.001201563, 0.001393984, 0.001604658], False, 3, [1, 1, 1, 1, 1, 1, 1, 1, 1, 1, 1], False), False)
sketch7.addGeometry(Part.BSplineCurve([V(-11.555769, -1.189005, 0), V(-11.50945, -1.265946, 0), V(-11.420104, -1.414358, 0), V(-11.32213, -1.647739, 0), V(-11.263322, -1.881071, 0), V(-11.255252, -2.036982, 0), V(-11.251282, -2.113684, 0)], [4, 1, 1, 1, 4], [0, 0.00026914, 0.00051914, 0.000756628, 0.0009866], False, 3, [1, 1, 1, 1, 1, 1, 1], False), False)
sketch7.addGeometry(Part.BSplineCurve([V(-12.780128, 0.102662, 0), V(-12.701032, 0.026312, 0), V(-12.550456, -0.119035, 0), V(-12.336036, -0.327166, 0), V(-12.147538, -0.518497, 0), V(-11.981022, -0.688071, 0), V(-11.840334, -0.840205, 0), V(-11.723624, -0.97251, 0), V(-11.629413, -1.085524, 0), V(-11.578389, -1.157221, 0), V(-11.555769, -1.189005, 0)], [4, 1, 1, 1, 1, 1, 1, 1, 4], [0, 0.000329805, 0.000627852, 0.000896419, 0.001135545, 0.001340805, 0.001517944, 0.001664865, 0.001781863], False, 3, [1, 1, 1, 1, 1, 1, 1, 1, 1, 1, 1], False), False)
sketch7.addGeometry(Part.BSplineCurve([V(-14.94359, 3.503303, 0), V(-14.92588, 3.371819, 0), V(-14.890469, 3.108925, 0), V(-14.780993, 2.724903, 0), V(-14.634879, 2.350163, 0), V(-14.476301, 2.045216, 0), V(-14.318577, 1.799744, 0), V(-14.175475, 1.598602, 0), V(-14.004758, 1.384596, 0), V(-13.808906, 1.155998, 0), V(-13.588999, 0.912093, 0), V(-13.343398, 0.653789, 0), V(-13.07093, 0.382321, 0), V(-12.879245, 0.19798, 0), V(-12.780128, 0.102662, 0)], [4, 1, 1, 1, 1, 1, 1, 1, 1, 1, 1, 1, 4], [0, 0.000397572, 0.00079492, 0.001194293, 0.001602869, 0.001823371, 0.00206928, 0.002343089, 0.002644324, 0.002972255, 0.00332819, 0.003713472, 0.004126007], False, 3, [1, 1, 1, 1, 1, 1, 1, 1, 1, 1, 1, 1, 1, 1, 1], False), False)
sketch7.addGeometry(Part.LineSegment(V(-14.94359, 3.503303, 0), V(-9.712821, 3.503303, 0)), False)
sketch7.addGeometry(Part.LineSegment(V(-9.2, -4.496697, 0), V(-6.241667, 3.503303, 0)), False)
sketch7.addGeometry(Part.LineSegment(V(-6.241667, 3.503303, 0), V(-4.659936, 3.503303, 0)), False)
sketch7.addGeometry(Part.LineSegment(V(-4.659936, 3.503303, 0), V(-1.712821, -4.496697, 0)), False)
sketch7.addGeometry(Part.LineSegment(V(-1.712821, -4.496697, 0), V(-3.345833, -4.496697, 0)), False)
sketch7.addGeometry(Part.LineSegment(V(-3.345833, -4.496697, 0), V(-5.45641, 1.452021, 0)), False)
sketch7.addGeometry(Part.LineSegment(V(-5.45641, 1.452021, 0), V(-7.575, -4.496697, 0)), False)
sketch7.addGeometry(Part.LineSegment(V(-7.575, -4.496697, 0), V(-9.2, -4.496697, 0)), False)
sketch7.addGeometry(Part.LineSegment(V(4.030769, 3.503303, 0), V(5.569231, 3.503303, 0)), False)
sketch7.addGeometry(Part.LineSegment(V(5.569231, 3.503303, 0), V(5.569231, -4.496697, 0)), False)
sketch7.addGeometry(Part.LineSegment(V(5.569231, -4.496697, 0), V(4.335256, -4.496697, 0)), False)
sketch7.addGeometry(Part.BSplineCurve([V(2.082051, -2.445415, 0), V(2.184508, -2.483832, 0), V(2.398943, -2.564236, 0), V(2.715376, -2.735258, 0), V(3.045661, -2.947002, 0), V(3.323119, -3.154673, 0), V(3.543409, -3.33931, 0), V(3.697375, -3.487728, 0), V(3.840034, -3.639717, 0), V(3.966023, -3.800181, 0), V(4.078648, -3.965876, 0), V(4.17844, -4.136531, 0), V(4.266279, -4.312686, 0), V(4.312263, -4.435357, 0), V(4.335256, -4.496697, 0)], [4, 1, 1, 1, 1, 1, 1, 1, 1, 1, 1, 1, 4], [0, 0.000327943, 0.000686359, 0.001076233, 0.001504439, 0.001725023, 0.00193811, 0.002145634, 0.002349865, 0.002549441, 0.002746237, 0.002942614, 0.003139025], False, 3, [1, 1, 1, 1, 1, 1, 1, 1, 1, 1, 1, 1, 1, 1, 1], False), False)
sketch7.addGeometry(Part.LineSegment(V(2.082051, -2.445415, 0), V(2.082051, -0.906953, 0)), False)
sketch7.addGeometry(Part.BSplineCurve([V(4.030769, -2.19221, 0), V(3.961038, -2.121419, 0), V(3.822521, -1.980799, 0), V(3.601288, -1.784653, 0), V(3.371615, -1.602185, 0), V(3.131228, -1.435128, 0), V(2.88327, -1.281103, 0), V(2.625207, -1.141325, 0), V(2.35891, -1.013859, 0), V(2.174434, -0.942626, 0), V(2.082051, -0.906953, 0)], [4, 1, 1, 1, 1, 1, 1, 1, 4], [0, 0.00029803, 0.000592016, 0.000886347, 0.001177542, 0.001469724, 0.001761589, 0.002057651, 0.002354645], False, 3, [1, 1, 1, 1, 1, 1, 1, 1, 1, 1, 1], False), False)
sketch7.addGeometry(Part.LineSegment(V(4.030769, -2.19221, 0), V(4.030769, 3.503303, 0)), False)
sketch7.addGeometry(Part.LineSegment(V(13.476282, 3.503303, 0), V(15.107692, 3.503303, 0)), False)
sketch7.addGeometry(Part.LineSegment(V(15.107692, 3.503303, 0), V(12.069231, -4.496697, 0)), False)
sketch7.addGeometry(Part.LineSegment(V(12.069231, -4.496697, 0), V(10.439423, -4.496697, 0)), False)
sketch7.addGeometry(Part.LineSegment(V(10.439423, -4.496697, 0), V(7.415385, 3.503303, 0)), False)
sketch7.addGeometry(Part.LineSegment(V(7.415385, 3.503303, 0), V(9.05641, 3.503303, 0)), False)
sketch7.addGeometry(Part.LineSegment(V(9.05641, 3.503303, 0), V(9.73109, 1.657149, 0)), False)
sketch7.addGeometry(Part.LineSegment(V(9.73109, 1.657149, 0), V(12.801603, 1.657149, 0)), False)
sketch7.addGeometry(Part.LineSegment(V(12.801603, 1.657149, 0), V(13.476282, 3.503303, 0)), False)
sketch7.addGeometry(Part.LineSegment(V(12.312821, 0.323816, 0), V(10.213462, 0.323816, 0)), False)
sketch7.addGeometry(Part.LineSegment(V(10.213462, 0.323816, 0), V(11.261538, -2.547979, 0)), False)
sketch7.addGeometry(Part.LineSegment(V(11.261538, -2.547979, 0), V(12.312821, 0.323816, 0)), False)
sketch7.addConstraint(Sketcher.Constraint("Block", 3))
sketch7.addConstraint(Sketcher.Constraint("Block", 5))
sketch7.addConstraint(Sketcher.Constraint("Block", 9))
sketch7.addConstraint(Sketcher.Constraint("Block", 10))
sketch7.addConstraint(Sketcher.Constraint("Block", 11))
sketch7.addConstraint(Sketcher.Constraint("Block", 12))
sketch7.addConstraint(Sketcher.Constraint("Block", 14))
sketch7.addConstraint(Sketcher.Constraint("Block", 15))
sketch7.addConstraint(Sketcher.Constraint("Block", 16))
sketch7.addConstraint(Sketcher.Constraint("Block", 17))
sketch7.addConstraint(Sketcher.Constraint("Block", 18))
sketch7.addConstraint(Sketcher.Constraint("Block", 30))
sketch7.addConstraint(Sketcher.Constraint("Block", 32))
sketch7.addConstraint(Sketcher.Constraint("Coincident", 0, 2, 1, 1))
sketch7.addConstraint(Sketcher.Constraint("Coincident", 1, 2, 2, 1))
sketch7.addConstraint(Sketcher.Constraint("Coincident", 2, 2, 3, 2))
sketch7.addConstraint(Sketcher.Constraint("Coincident", 3, 1, 4, 1))
sketch7.addConstraint(Sketcher.Constraint("Coincident", 4, 2, 5, 2))
sketch7.addConstraint(Sketcher.Constraint("Coincident", 5, 1, 6, 1))
sketch7.addConstraint(Sketcher.Constraint("Coincident", 6, 2, 0, 1))
sketch7.addConstraint(Sketcher.Constraint("Coincident", 7, 2, 8, 1))
sketch7.addConstraint(Sketcher.Constraint("Coincident", 8, 2, 9, 2))
sketch7.addConstraint(Sketcher.Constraint("Coincident", 12, 1, 13, 1))
sketch7.addConstraint(Sketcher.Constraint("Coincident", 13, 2, 14, 2))
sketch7.addConstraint(Sketcher.Constraint("Coincident", 18, 1, 19, 1))
sketch7.addConstraint(Sketcher.Constraint("Coincident", 19, 2, 7, 1))
sketch7.addConstraint(Sketcher.Constraint("Coincident", 20, 2, 21, 1))
sketch7.addConstraint(Sketcher.Constraint("Coincident", 21, 2, 22, 1))
sketch7.addConstraint(Sketcher.Constraint("Coincident", 22, 2, 23, 1))
sketch7.addConstraint(Sketcher.Constraint("Coincident", 23, 2, 24, 1))
sketch7.addConstraint(Sketcher.Constraint("Coincident", 24, 2, 25, 1))
sketch7.addConstraint(Sketcher.Constraint("Coincident", 25, 2, 26, 1))
sketch7.addConstraint(Sketcher.Constraint("Coincident", 26, 2, 20, 1))
sketch7.addConstraint(Sketcher.Constraint("Coincident", 27, 2, 28, 1))
sketch7.addConstraint(Sketcher.Constraint("Coincident", 28, 2, 29, 1))
sketch7.addConstraint(Sketcher.Constraint("Coincident", 29, 2, 30, 2))
sketch7.addConstraint(Sketcher.Constraint("Coincident", 30, 1, 31, 1))
sketch7.addConstraint(Sketcher.Constraint("Coincident", 31, 2, 32, 2))
sketch7.addConstraint(Sketcher.Constraint("Coincident", 32, 1, 33, 1))
sketch7.addConstraint(Sketcher.Constraint("Coincident", 33, 2, 27, 1))
sketch7.addConstraint(Sketcher.Constraint("Coincident", 34, 2, 35, 1))
sketch7.addConstraint(Sketcher.Constraint("Coincident", 35, 2, 36, 1))
sketch7.addConstraint(Sketcher.Constraint("Coincident", 36, 2, 37, 1))
sketch7.addConstraint(Sketcher.Constraint("Coincident", 37, 2, 38, 1))
sketch7.addConstraint(Sketcher.Constraint("Coincident", 38, 2, 39, 1))
sketch7.addConstraint(Sketcher.Constraint("Coincident", 39, 2, 40, 1))
sketch7.addConstraint(Sketcher.Constraint("Coincident", 40, 2, 41, 1))
sketch7.addConstraint(Sketcher.Constraint("Coincident", 41, 2, 34, 1))
sketch7.addConstraint(Sketcher.Constraint("Coincident", 42, 2, 43, 1))
sketch7.addConstraint(Sketcher.Constraint("Coincident", 43, 2, 44, 1))
sketch7.addConstraint(Sketcher.Constraint("Coincident", 44, 2, 42, 1))
sketch7.addConstraint(Sketcher.Constraint("Horizontal", 0))
sketch7.addConstraint(Sketcher.Constraint("Vertical", 1))
sketch7.addConstraint(Sketcher.Constraint("Horizontal", 2))
sketch7.addConstraint(Sketcher.Constraint("Vertical", 6))
sketch7.addConstraint(Sketcher.Constraint("Vertical", 7))
sketch7.addConstraint(Sketcher.Constraint("Horizontal", 8))
sketch7.addConstraint(Sketcher.Constraint("Horizontal", 19))
sketch7.addConstraint(Sketcher.Constraint("Horizontal", 21))
sketch7.addConstraint(Sketcher.Constraint("Horizontal", 23))
sketch7.addConstraint(Sketcher.Constraint("Horizontal", 26))
sketch7.addConstraint(Sketcher.Constraint("Horizontal", 27))
sketch7.addConstraint(Sketcher.Constraint("Vertical", 28))
sketch7.addConstraint(Sketcher.Constraint("Horizontal", 29))
sketch7.addConstraint(Sketcher.Constraint("Vertical", 33))
sketch7.addConstraint(Sketcher.Constraint("Horizontal", 34))
sketch7.addConstraint(Sketcher.Constraint("Horizontal", 36))
sketch7.addConstraint(Sketcher.Constraint("Horizontal", 38))
sketch7.addConstraint(Sketcher.Constraint("Horizontal", 40))
sketch7.addConstraint(Sketcher.Constraint("Horizontal", 42))
sketch7.addConstraint(Sketcher.Constraint("DistanceY", 1, 2, 1, 1, 8.0))
sketch7.addConstraint(Sketcher.Constraint("DistanceY", 28, 2, 28, 1, 8.0))
sketch7.addConstraint(Sketcher.Constraint("DistanceX", 1, 2, 13, 2, 4.0))
sketch7.addConstraint(Sketcher.Constraint("DistanceY", 22, 2, 21, 2, 8.0))
sketch7.addConstraint(Sketcher.Constraint("DistanceX", 7, 2, 22, 2, 8.0))
sketch7.addConstraint(Sketcher.Constraint("DistanceY", 22, 2, 19, 2, 8.0))
sketch7.addConstraint(Sketcher.Constraint("DistanceX", 13, 2, 26, 2, 4.0))
sketch7.addConstraint(Sketcher.Constraint("DistanceY", 28, 2, 34, 2, 8.0))
sketch7.addConstraint(Sketcher.Constraint("DistanceY", 35, 2, 34, 2, 8.0))
sketch7.addConstraint(Sketcher.Constraint("DistanceY", 28, 2, 37, 2, 8.0))
sketch7.addConstraint(Sketcher.Constraint("DistanceX", 28, 2, 35, 2, 6.5))
sketch7.addConstraint(Sketcher.Constraint("DistanceX", 26, 2, 26, 1, 1.625))
sketch7.addConstraint(Sketcher.Constraint("DistanceX", 19, 1, 19, 2, 5.230769))
sketch7.addConstraint(Sketcher.Constraint("DistanceX", 21, 1, 21, 2, 1.581731))
sketch7.addConstraint(Sketcher.Constraint("DistanceX", 27, 1, 27, 2, 1.538462))
sketch7.addConstraint(Sketcher.Constraint("DistanceX", 34, 1, 34, 2, 1.63141))
sketch7.addConstraint(Sketcher.Constraint("DistanceX", 42, 2, 42, 1, 2.099359))
sketch7.addConstraint(Sketcher.Constraint("Distance", 22, 8.525579))
sketch7.addConstraint(Sketcher.Constraint("Distance", 25, 6.314718))
sketch7.addConstraint(Sketcher.Constraint("Distance", 43, 3.057069))
sketch7.addConstraint(Sketcher.Constraint("Distance", 44, 3.058169))
sketch7.addConstraint(Sketcher.Constraint("DistanceX", 23, 2, 23, 1, 1.633013))
sketch7.addConstraint(Sketcher.Constraint("DistanceX", 36, 2, 36, 1, 1.629808))
sketch7.addConstraint(Sketcher.Constraint("DistanceX", 38, 1, 38, 2, 1.641026))
sketch7.addConstraint(Sketcher.Constraint("DistanceX", 40, 1, 40, 2, 3.070513))
sketch7.addConstraint(Sketcher.Constraint("DistanceX", 24, 2, -1, 1, 5.45641))
sketch7.addConstraint(Sketcher.Constraint("DistanceY", -1, 1, 24, 2, 1.452021))
sketch7.addConstraint(Sketcher.Constraint("DistanceX", -1, 1, 38, 2, 9.05641))
sketch7.addConstraint(Sketcher.Constraint("DistanceX", -1, 1, 39, 2, 9.73109))
sketch7.addConstraint(Sketcher.Constraint("DistanceY", -1, 1, 39, 2, 1.657149))
sketch7.addConstraint(Sketcher.Constraint("DistanceX", -1, 1, 42, 2, 10.213462))
sketch7.addConstraint(Sketcher.Constraint("DistanceY", 43, 2, -1, 1, 2.547979))
sketch7.addConstraint(Sketcher.Constraint("DistanceX", 27, 2, 34, 2, 9.538462))
pocket6 = body.newObject("PartDesign::Pocket", "Pocket005")
pocket6.Profile = sketch7
pocket6.Length = 0.2
pocket6.Reversed = True

sketch8 = body.newObject("Sketcher::SketchObject", "Sketch007")
sketch8.AttachmentSupport = (doc.getObject("XZ_Plane"), [""])
sketch8.MapMode = "FlatFace"
sketch8.AttachmentOffset = App.Placement(V(0, 0, -8.8), App.Rotation())
sketch8.addGeometry(Part.LineSegment(V(19.2, 0.75, 0), V(19.2, -0.75, 0)), False)
sketch8.addGeometry(Part.LineSegment(V(19.2, -0.75, 0), V(21, -0.75, 0)), False)
sketch8.addGeometry(Part.LineSegment(V(21, -0.75, 0), V(21, 0.75, 0)), False)
sketch8.addGeometry(Part.LineSegment(V(21, 0.75, 0), V(19.2, 0.75, 0)), False)
sketch8.addConstraint(Sketcher.Constraint("Coincident", 0, 2, 1, 1))
sketch8.addConstraint(Sketcher.Constraint("Coincident", 1, 2, 2, 1))
sketch8.addConstraint(Sketcher.Constraint("Coincident", 2, 2, 3, 1))
sketch8.addConstraint(Sketcher.Constraint("Coincident", 3, 2, 0, 1))
sketch8.addConstraint(Sketcher.Constraint("Vertical", 0))
sketch8.addConstraint(Sketcher.Constraint("Horizontal", 1))
sketch8.addConstraint(Sketcher.Constraint("Vertical", 2))
sketch8.addConstraint(Sketcher.Constraint("Horizontal", 3))
sketch8.addConstraint(Sketcher.Constraint("DistanceX", 1, 1, 1, 2, 1.8))
sketch8.addConstraint(Sketcher.Constraint("DistanceY", 0, 2, 0, 1, 1.5))
sketch8.addConstraint(Sketcher.Constraint("DistanceX", -1, 1, 1, 2, 21.0))
sketch8.addConstraint(Sketcher.Constraint("DistanceY", 0, 2, -1, 1, 0.75))
pad2 = body.newObject("PartDesign::Pad", "Pad001")
pad2.Profile = sketch8
pad2.Length = 1
doc.recompute()

chamfer = body.newObject("PartDesign::Chamfer", "Chamfer")
chamfer.Base = (pad2, edges_at(pad2, [(21, 7.8, 0)]))
chamfer.Size = 0.5

doc.recompute()
